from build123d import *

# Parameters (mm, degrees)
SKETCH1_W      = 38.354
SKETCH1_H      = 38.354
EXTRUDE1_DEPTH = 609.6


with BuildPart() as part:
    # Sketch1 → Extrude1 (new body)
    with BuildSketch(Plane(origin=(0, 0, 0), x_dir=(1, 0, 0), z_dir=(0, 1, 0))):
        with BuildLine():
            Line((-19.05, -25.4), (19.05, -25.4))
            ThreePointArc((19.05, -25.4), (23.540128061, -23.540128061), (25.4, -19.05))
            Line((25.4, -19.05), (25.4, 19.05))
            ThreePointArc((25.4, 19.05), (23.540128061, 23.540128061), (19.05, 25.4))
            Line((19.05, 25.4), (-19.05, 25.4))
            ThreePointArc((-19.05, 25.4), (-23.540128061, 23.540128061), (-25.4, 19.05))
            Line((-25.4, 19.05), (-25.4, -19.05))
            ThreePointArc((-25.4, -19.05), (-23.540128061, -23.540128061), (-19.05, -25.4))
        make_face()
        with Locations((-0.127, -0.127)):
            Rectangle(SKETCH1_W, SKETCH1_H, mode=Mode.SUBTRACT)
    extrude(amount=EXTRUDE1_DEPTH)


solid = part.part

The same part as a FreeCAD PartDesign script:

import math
import FreeCAD as App
import Part
import Sketcher

V = App.Vector
Q = App.Units.Quantity

doc = App.newDocument("Part")
body = doc.addObject("PartDesign::Body", "Body")

sketch1 = body.newObject("Sketcher::SketchObject", "Sketch")
sketch1.AttachmentSupport = (doc.getObject("XZ_Plane"), [""])
sketch1.MapMode = "FlatFace"
sketch1.addGeometry([
    Part.LineSegment(V(-19, 25, 0), V(19, 25, 0)),
    Part.ArcOfCircle(Part.Circle(V(19, 19, 0), V(0, 0, 1), 6), math.radians(0), math.radians(90)),
    Part.LineSegment(V(25, 19, 0), V(25, -19, 0)),
    Part.ArcOfCircle(Part.Circle(V(19, -19, 0), V(0, 0, 1), 6), math.radians(-90), math.radians(0)),
    Part.LineSegment(V(19, -25, 0), V(-19, -25, 0)),
    Part.ArcOfCircle(Part.Circle(V(-19, -19, 0), V(0, 0, 1), 6), math.radians(180), math.radians(270)),
    Part.LineSegment(V(-25, -19, 0), V(-25, 19, 0)),
    Part.ArcOfCircle(Part.Circle(V(-19, 19, 0), V(0, 0, 1), 6), math.radians(90), math.radians(180)),
    Part.LineSegment(V(19, 19, 0), V(-19, 19, 0)),
    Part.LineSegment(V(-19, 19, 0), V(-19, -19, 0)),
    Part.LineSegment(V(-19, -19, 0), V(19, -19, 0)),
    Part.LineSegment(V(19, -19, 0), V(19, 19, 0)),
], False)
sketch1.addConstraint([
    Sketcher.Constraint("Tangent", 0, 2, 1, 2),
    Sketcher.Constraint("Tangent", 1, 1, 2, 1),
    Sketcher.Constraint("Tangent", 2, 2, 3, 2),
    Sketcher.Constraint("Tangent", 3, 1, 4, 1),
    Sketcher.Constraint("Tangent", 4, 2, 5, 2),
    Sketcher.Constraint("Tangent", 5, 1, 6, 1),
    Sketcher.Constraint("Tangent", 6, 2, 7, 2),
    Sketcher.Constraint("Tangent", 7, 1, 0, 1),
    Sketcher.Constraint("Coincident", 8, 2, 9, 1),
    Sketcher.Constraint("Coincident", 9, 2, 10, 1),
    Sketcher.Constraint("Coincident", 10, 2, 11, 1),
    Sketcher.Constraint("Coincident", 11, 2, 8, 1),
    Sketcher.Constraint("Horizontal", 0),
    Sketcher.Constraint("Vertical", 2),
    Sketcher.Constraint("Horizontal", 4),
    Sketcher.Constraint("Vertical", 6),
    Sketcher.Constraint("Horizontal", 8),
    Sketcher.Constraint("Vertical", 9),
    Sketcher.Constraint("Horizontal", 10),
    Sketcher.Constraint("Vertical", 11),
    Sketcher.Constraint("Coincident", 10, 2, 3, 3),
    Sketcher.Constraint("Equal", 1, 3),
    Sketcher.Constraint("Equal", 3, 5),
    Sketcher.Constraint("Equal", 5, 7),
    Sketcher.Constraint("Symmetric", 1, 3, 5, 3, -1, 1),
    Sketcher.Constraint("Equal", 4, 2),
    Sketcher.Constraint("Equal", 10, 9),
    Sketcher.Constraint("Radius", 1, Q("0.25 in")),
    Sketcher.Constraint("DistanceX", 0, 1, 0, 2, Q("1.5 in")),
    Sketcher.Constraint("DistanceX", 8, 2, 8, 1, Q("1.51 in")),
])
pad1 = body.newObject("PartDesign::Pad", "Pad")
pad1.Profile = sketch1
pad1.Length = Q("24 in")
pad1.Reversed = True

doc.recompute()
